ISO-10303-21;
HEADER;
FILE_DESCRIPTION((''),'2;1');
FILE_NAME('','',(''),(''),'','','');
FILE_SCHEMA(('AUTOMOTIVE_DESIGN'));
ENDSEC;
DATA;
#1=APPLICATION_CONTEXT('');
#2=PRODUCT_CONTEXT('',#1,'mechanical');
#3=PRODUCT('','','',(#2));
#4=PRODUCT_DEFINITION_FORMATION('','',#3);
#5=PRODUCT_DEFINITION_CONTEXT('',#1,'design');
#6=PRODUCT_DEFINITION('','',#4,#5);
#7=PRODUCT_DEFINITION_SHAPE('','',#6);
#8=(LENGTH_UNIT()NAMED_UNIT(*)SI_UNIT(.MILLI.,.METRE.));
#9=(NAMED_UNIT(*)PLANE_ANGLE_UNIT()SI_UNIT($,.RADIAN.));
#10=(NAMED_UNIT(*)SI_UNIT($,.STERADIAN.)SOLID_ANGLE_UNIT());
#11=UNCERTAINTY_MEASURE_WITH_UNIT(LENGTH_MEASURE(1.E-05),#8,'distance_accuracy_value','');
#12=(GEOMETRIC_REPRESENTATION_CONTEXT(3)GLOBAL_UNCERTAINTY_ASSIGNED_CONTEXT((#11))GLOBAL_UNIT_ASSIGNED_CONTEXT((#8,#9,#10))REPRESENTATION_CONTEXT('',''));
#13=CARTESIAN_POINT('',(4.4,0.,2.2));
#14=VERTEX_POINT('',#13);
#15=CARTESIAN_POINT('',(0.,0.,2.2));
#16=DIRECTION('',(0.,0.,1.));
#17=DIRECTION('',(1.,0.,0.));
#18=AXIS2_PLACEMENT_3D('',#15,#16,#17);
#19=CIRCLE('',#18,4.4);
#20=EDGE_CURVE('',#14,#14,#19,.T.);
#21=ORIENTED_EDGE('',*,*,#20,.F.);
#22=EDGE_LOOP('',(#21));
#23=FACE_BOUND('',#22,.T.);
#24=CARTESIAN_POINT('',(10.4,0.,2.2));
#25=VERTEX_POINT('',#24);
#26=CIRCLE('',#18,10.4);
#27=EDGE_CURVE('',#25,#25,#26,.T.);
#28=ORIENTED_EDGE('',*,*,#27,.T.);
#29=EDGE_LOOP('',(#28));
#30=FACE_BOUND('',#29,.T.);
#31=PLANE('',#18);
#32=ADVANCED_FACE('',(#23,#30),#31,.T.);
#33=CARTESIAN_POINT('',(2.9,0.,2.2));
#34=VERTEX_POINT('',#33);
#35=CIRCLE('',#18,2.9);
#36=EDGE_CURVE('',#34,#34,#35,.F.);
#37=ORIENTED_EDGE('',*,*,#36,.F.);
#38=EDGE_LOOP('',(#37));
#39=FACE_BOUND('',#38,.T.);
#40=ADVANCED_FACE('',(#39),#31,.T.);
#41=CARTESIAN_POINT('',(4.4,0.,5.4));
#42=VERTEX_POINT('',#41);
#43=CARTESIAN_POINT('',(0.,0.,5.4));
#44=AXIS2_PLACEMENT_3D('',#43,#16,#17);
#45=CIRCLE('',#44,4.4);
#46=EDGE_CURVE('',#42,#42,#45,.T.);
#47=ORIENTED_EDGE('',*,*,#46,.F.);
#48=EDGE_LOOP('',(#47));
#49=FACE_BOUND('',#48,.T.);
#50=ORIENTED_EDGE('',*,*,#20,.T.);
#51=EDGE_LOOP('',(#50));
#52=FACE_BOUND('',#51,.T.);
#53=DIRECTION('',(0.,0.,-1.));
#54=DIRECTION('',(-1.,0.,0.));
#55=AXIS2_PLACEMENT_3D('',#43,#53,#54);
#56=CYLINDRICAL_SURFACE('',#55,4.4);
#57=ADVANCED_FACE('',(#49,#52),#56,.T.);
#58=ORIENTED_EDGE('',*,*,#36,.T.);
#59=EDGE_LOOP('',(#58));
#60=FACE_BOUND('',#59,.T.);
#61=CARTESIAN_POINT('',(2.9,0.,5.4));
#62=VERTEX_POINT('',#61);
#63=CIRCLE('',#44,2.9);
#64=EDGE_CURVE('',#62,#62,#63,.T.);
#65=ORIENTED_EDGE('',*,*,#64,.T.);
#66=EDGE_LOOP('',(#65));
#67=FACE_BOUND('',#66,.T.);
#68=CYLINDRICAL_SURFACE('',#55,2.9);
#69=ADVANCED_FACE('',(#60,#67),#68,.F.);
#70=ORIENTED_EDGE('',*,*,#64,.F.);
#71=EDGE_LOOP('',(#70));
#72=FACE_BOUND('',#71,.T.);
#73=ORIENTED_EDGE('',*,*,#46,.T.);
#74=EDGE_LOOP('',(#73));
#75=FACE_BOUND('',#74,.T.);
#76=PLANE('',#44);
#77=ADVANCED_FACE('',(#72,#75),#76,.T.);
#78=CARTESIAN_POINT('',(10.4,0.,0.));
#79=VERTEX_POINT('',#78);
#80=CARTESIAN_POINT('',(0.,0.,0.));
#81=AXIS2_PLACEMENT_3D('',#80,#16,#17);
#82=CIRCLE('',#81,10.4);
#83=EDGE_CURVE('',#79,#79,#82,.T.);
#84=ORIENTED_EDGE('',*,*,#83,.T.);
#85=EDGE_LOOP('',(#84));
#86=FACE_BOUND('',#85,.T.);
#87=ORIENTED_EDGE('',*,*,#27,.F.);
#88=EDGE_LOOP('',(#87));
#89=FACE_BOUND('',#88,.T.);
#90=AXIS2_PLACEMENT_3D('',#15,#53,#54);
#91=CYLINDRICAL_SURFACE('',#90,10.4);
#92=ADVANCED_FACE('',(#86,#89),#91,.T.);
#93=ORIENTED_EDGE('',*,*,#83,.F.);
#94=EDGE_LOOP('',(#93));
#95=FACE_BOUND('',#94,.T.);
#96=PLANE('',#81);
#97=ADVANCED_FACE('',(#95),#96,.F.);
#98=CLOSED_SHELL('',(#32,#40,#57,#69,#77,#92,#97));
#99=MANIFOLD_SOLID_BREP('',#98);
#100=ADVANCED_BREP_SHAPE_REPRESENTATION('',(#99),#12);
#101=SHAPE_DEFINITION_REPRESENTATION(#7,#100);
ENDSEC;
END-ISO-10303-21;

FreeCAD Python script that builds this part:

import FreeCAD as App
import Part
import Sketcher
Q = App.Units.Quantity

doc = App.newDocument("Part")
body = doc.addObject("PartDesign::Body", "Body")

sketch1 = body.newObject("Sketcher::SketchObject", "Sketch")
sketch1.AttachmentSupport = (doc.getObject("XY_Plane"), [""])
sketch1.MapMode = "FlatFace"
sketch1.addGeometry(Part.Circle(App.Vector(0, 0, 0), App.Vector(0, 0, 1), 10), False)
sketch1.addConstraint(Sketcher.Constraint("Coincident", 0, 3, -1, 1))
sketch1.addConstraint(Sketcher.Constraint("Diameter", 0, Q("20.8 mm")))
pad1 = body.newObject("PartDesign::Pad", "Pad")
pad1.Profile = sketch1
pad1.Length = 2.2

sketch2 = body.newObject("Sketcher::SketchObject", "Sketch001")
sketch2.AttachmentSupport = (doc.getObject("XY_Plane"), [""])
sketch2.MapMode = "FlatFace"
sketch2.AttachmentOffset = App.Placement(App.Vector(0, 0, 2.2), App.Rotation())
sketch2.addGeometry(Part.Circle(App.Vector(0, 0, 0), App.Vector(0, 0, 1), 4.4), False)
sketch2.addGeometry(Part.Circle(App.Vector(0, 0, 0), App.Vector(0, 0, 1), 2.9), False)
sketch2.addConstraint(Sketcher.Constraint("Coincident", 0, 3, -1, 1))
sketch2.addConstraint(Sketcher.Constraint("Coincident", 1, 3, -1, 1))
sketch2.addConstraint(Sketcher.Constraint("Diameter", 0, Q("8.8 mm")))
sketch2.addConstraint(Sketcher.Constraint("Diameter", 1, Q("5.8 mm")))
pad2 = body.newObject("PartDesign::Pad", "Pad001")
pad2.Profile = sketch2
pad2.Length = 3.2

doc.recompute()
